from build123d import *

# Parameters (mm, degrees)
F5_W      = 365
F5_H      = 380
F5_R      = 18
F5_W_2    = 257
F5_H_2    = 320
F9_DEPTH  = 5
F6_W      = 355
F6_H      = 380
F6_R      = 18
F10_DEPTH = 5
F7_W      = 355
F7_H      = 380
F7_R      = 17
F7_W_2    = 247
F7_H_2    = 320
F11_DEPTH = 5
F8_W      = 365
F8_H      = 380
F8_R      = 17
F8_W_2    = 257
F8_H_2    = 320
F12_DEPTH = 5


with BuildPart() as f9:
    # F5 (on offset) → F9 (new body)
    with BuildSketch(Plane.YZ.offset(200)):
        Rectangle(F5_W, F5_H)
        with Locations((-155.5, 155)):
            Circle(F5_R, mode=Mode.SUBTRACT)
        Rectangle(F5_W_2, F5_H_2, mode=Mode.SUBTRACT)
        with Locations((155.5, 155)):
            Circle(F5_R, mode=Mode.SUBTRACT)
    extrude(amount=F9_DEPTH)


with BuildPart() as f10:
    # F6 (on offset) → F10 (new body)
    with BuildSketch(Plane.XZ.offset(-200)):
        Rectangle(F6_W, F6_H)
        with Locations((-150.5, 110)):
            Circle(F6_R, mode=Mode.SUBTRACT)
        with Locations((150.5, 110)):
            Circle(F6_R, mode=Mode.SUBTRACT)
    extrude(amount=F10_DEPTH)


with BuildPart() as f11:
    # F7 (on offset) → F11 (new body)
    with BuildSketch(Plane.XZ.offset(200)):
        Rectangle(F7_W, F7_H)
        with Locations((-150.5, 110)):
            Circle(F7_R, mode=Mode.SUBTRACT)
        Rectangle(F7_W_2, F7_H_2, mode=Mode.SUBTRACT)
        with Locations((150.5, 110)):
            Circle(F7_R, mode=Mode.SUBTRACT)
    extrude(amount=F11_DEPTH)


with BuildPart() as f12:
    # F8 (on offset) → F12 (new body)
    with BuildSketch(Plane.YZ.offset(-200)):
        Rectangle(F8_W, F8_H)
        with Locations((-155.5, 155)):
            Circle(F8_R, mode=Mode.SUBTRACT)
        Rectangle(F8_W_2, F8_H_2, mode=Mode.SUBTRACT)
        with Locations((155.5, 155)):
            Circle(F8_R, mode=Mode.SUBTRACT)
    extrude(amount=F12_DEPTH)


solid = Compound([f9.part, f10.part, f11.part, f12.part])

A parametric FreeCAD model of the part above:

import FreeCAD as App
import Part
import Sketcher

V = App.Vector

doc = App.newDocument("Part")
body = doc.addObject("PartDesign::Body", "Body")

# Sketch on YZ plane
sketch1 = doc.addObject("Sketcher::SketchObject", "Sketch")
body.addObject(sketch1)
sketch1.AttachmentSupport = (doc.YZ_Plane, [""])
sketch1.MapMode = "FlatFace"
sketch1.AttachmentOffset = App.Placement(V(0, 0, 200), App.Rotation())
sketch1.addGeometry(Part.LineSegment(V(-182, 190, 0), V(-182, -190, 0)), False)
sketch1.addGeometry(Part.LineSegment(V(-182, -190, 0), V(182, -190, 0)), False)
sketch1.addGeometry(Part.LineSegment(V(182, -190, 0), V(182, 190, 0)), False)
sketch1.addGeometry(Part.LineSegment(V(182, 190, 0), V(-182, 190, 0)), False)
sketch1.addGeometry(Part.LineSegment(V(128, -160, 0), V(-128, -160, 0)), False)
sketch1.addGeometry(Part.LineSegment(V(-128, -160, 0), V(-128, 160, 0)), False)
sketch1.addGeometry(Part.LineSegment(V(-128, 160, 0), V(128, 160, 0)), False)
sketch1.addGeometry(Part.LineSegment(V(128, 160, 0), V(128, -160, 0)), False)
sketch1.addGeometry(Part.Circle(V(-156, 155, 0), V(0, 0, 1), 18), False)
sketch1.addGeometry(Part.Circle(V(156, 155, 0), V(0, 0, 1), 18), False)
sketch1.addConstraint(Sketcher.Constraint("Coincident", 0, 2, 1, 1))
sketch1.addConstraint(Sketcher.Constraint("Coincident", 1, 2, 2, 1))
sketch1.addConstraint(Sketcher.Constraint("Coincident", 2, 2, 3, 1))
sketch1.addConstraint(Sketcher.Constraint("Coincident", 3, 2, 0, 1))
sketch1.addConstraint(Sketcher.Constraint("Coincident", 4, 2, 5, 1))
sketch1.addConstraint(Sketcher.Constraint("Coincident", 5, 2, 6, 1))
sketch1.addConstraint(Sketcher.Constraint("Coincident", 6, 2, 7, 1))
sketch1.addConstraint(Sketcher.Constraint("Coincident", 7, 2, 4, 1))
sketch1.addConstraint(Sketcher.Constraint("Vertical", 0))
sketch1.addConstraint(Sketcher.Constraint("Horizontal", 1))
sketch1.addConstraint(Sketcher.Constraint("Vertical", 2))
sketch1.addConstraint(Sketcher.Constraint("Horizontal", 3))
sketch1.addConstraint(Sketcher.Constraint("Horizontal", 4))
sketch1.addConstraint(Sketcher.Constraint("Vertical", 5))
sketch1.addConstraint(Sketcher.Constraint("Horizontal", 6))
sketch1.addConstraint(Sketcher.Constraint("Vertical", 7))
sketch1.addConstraint(Sketcher.Constraint("Equal", 8, 9))
sketch1.addConstraint(Sketcher.Constraint("Symmetric", 0, 2, 2, 2, -1, 1))
sketch1.addConstraint(Sketcher.Constraint("Symmetric", 4, 2, 6, 2, -1, 1))
sketch1.addConstraint(Sketcher.Constraint("Symmetric", 8, 3, 9, 3, -2))
sketch1.addConstraint(Sketcher.Constraint("Diameter", 8, 36.0))
sketch1.addConstraint(Sketcher.Constraint("DistanceX", 1, 1, 1, 2, 365.0))
sketch1.addConstraint(Sketcher.Constraint("DistanceX", 4, 2, 4, 1, 257.0))
sketch1.addConstraint(Sketcher.Constraint("DistanceY", 0, 2, 0, 1, 380.0))
sketch1.addConstraint(Sketcher.Constraint("DistanceY", 5, 1, 5, 2, 320.0))
sketch1.addConstraint(Sketcher.Constraint("DistanceY", -1, 1, 8, 3, 155.0))
sketch1.addConstraint(Sketcher.Constraint("DistanceX", 8, 3, 9, 3, 311.0))
pad1 = doc.addObject("PartDesign::Pad", "Pad")
body.addObject(pad1)
pad1.Profile = sketch1
pad1.Length = 5
body2 = doc.addObject("PartDesign::Body", "Body001")

# Sketch on XZ plane
sketch2 = doc.addObject("Sketcher::SketchObject", "Sketch001")
body2.addObject(sketch2)
sketch2.AttachmentSupport = (doc.getObject("XZ_Plane001"), [""])
sketch2.MapMode = "FlatFace"
sketch2.AttachmentOffset = App.Placement(V(0, 0, -200), App.Rotation())
sketch2.addGeometry(Part.LineSegment(V(-178, 190, 0), V(-178, -190, 0)), False)
sketch2.addGeometry(Part.LineSegment(V(-178, -190, 0), V(178, -190, 0)), False)
sketch2.addGeometry(Part.LineSegment(V(178, -190, 0), V(178, 190, 0)), False)
sketch2.addGeometry(Part.LineSegment(V(178, 190, 0), V(-178, 190, 0)), False)
sketch2.addGeometry(Part.Circle(V(-150, 110, 0), V(0, 0, 1), 18), False)
sketch2.addGeometry(Part.Circle(V(150, 110, 0), V(0, 0, 1), 18), False)
sketch2.addConstraint(Sketcher.Constraint("Coincident", 0, 2, 1, 1))
sketch2.addConstraint(Sketcher.Constraint("Coincident", 1, 2, 2, 1))
sketch2.addConstraint(Sketcher.Constraint("Coincident", 2, 2, 3, 1))
sketch2.addConstraint(Sketcher.Constraint("Coincident", 3, 2, 0, 1))
sketch2.addConstraint(Sketcher.Constraint("Vertical", 0))
sketch2.addConstraint(Sketcher.Constraint("Horizontal", 1))
sketch2.addConstraint(Sketcher.Constraint("Vertical", 2))
sketch2.addConstraint(Sketcher.Constraint("Horizontal", 3))
sketch2.addConstraint(Sketcher.Constraint("Equal", 4, 5))
sketch2.addConstraint(Sketcher.Constraint("Symmetric", 0, 2, 2, 2, -1, 1))
sketch2.addConstraint(Sketcher.Constraint("Symmetric", 4, 3, 5, 3, -2))
sketch2.addConstraint(Sketcher.Constraint("Diameter", 4, 36.0))
sketch2.addConstraint(Sketcher.Constraint("DistanceX", 1, 1, 1, 2, 355.0))
sketch2.addConstraint(Sketcher.Constraint("DistanceY", 0, 2, 0, 1, 380.0))
sketch2.addConstraint(Sketcher.Constraint("DistanceY", -1, 1, 4, 3, 110.0))
sketch2.addConstraint(Sketcher.Constraint("DistanceX", 4, 3, 5, 3, 301.0))
pad2 = doc.addObject("PartDesign::Pad", "Pad001")
body2.addObject(pad2)
pad2.Profile = sketch2
pad2.Length = 5
body3 = doc.addObject("PartDesign::Body", "Body002")

# Sketch on XZ plane
sketch3 = doc.addObject("Sketcher::SketchObject", "Sketch002")
body3.addObject(sketch3)
sketch3.AttachmentSupport = (doc.getObject("XZ_Plane002"), [""])
sketch3.MapMode = "FlatFace"
sketch3.AttachmentOffset = App.Placement(V(0, 0, 200), App.Rotation())
sketch3.addGeometry(Part.LineSegment(V(-178, 190, 0), V(-178, -190, 0)), False)
sketch3.addGeometry(Part.LineSegment(V(-178, -190, 0), V(178, -190, 0)), False)
sketch3.addGeometry(Part.LineSegment(V(178, -190, 0), V(178, 190, 0)), False)
sketch3.addGeometry(Part.LineSegment(V(178, 190, 0), V(-178, 190, 0)), False)
sketch3.addGeometry(Part.Circle(V(-150, 110, 0), V(0, 0, 1), 17), False)
sketch3.addGeometry(Part.LineSegment(V(124, -160, 0), V(-124, -160, 0)), False)
sketch3.addGeometry(Part.LineSegment(V(-124, -160, 0), V(-124, 160, 0)), False)
sketch3.addGeometry(Part.LineSegment(V(-124, 160, 0), V(124, 160, 0)), False)
sketch3.addGeometry(Part.LineSegment(V(124, 160, 0), V(124, -160, 0)), False)
sketch3.addGeometry(Part.Circle(V(150, 110, 0), V(0, 0, 1), 17), False)
sketch3.addConstraint(Sketcher.Constraint("Coincident", 0, 2, 1, 1))
sketch3.addConstraint(Sketcher.Constraint("Coincident", 1, 2, 2, 1))
sketch3.addConstraint(Sketcher.Constraint("Coincident", 2, 2, 3, 1))
sketch3.addConstraint(Sketcher.Constraint("Coincident", 3, 2, 0, 1))
sketch3.addConstraint(Sketcher.Constraint("Coincident", 5, 2, 6, 1))
sketch3.addConstraint(Sketcher.Constraint("Coincident", 6, 2, 7, 1))
sketch3.addConstraint(Sketcher.Constraint("Coincident", 7, 2, 8, 1))
sketch3.addConstraint(Sketcher.Constraint("Coincident", 8, 2, 5, 1))
sketch3.addConstraint(Sketcher.Constraint("Vertical", 0))
sketch3.addConstraint(Sketcher.Constraint("Horizontal", 1))
sketch3.addConstraint(Sketcher.Constraint("Vertical", 2))
sketch3.addConstraint(Sketcher.Constraint("Horizontal", 3))
sketch3.addConstraint(Sketcher.Constraint("Horizontal", 5))
sketch3.addConstraint(Sketcher.Constraint("Vertical", 6))
sketch3.addConstraint(Sketcher.Constraint("Horizontal", 7))
sketch3.addConstraint(Sketcher.Constraint("Vertical", 8))
sketch3.addConstraint(Sketcher.Constraint("Equal", 4, 9))
sketch3.addConstraint(Sketcher.Constraint("Symmetric", 0, 2, 2, 2, -1, 1))
sketch3.addConstraint(Sketcher.Constraint("Symmetric", 5, 2, 7, 2, -1, 1))
sketch3.addConstraint(Sketcher.Constraint("Symmetric", 4, 3, 9, 3, -2))
sketch3.addConstraint(Sketcher.Constraint("Diameter", 4, 34.0))
sketch3.addConstraint(Sketcher.Constraint("DistanceX", 1, 1, 1, 2, 355.0))
sketch3.addConstraint(Sketcher.Constraint("DistanceX", 5, 2, 5, 1, 247.0))
sketch3.addConstraint(Sketcher.Constraint("DistanceY", 0, 2, 0, 1, 380.0))
sketch3.addConstraint(Sketcher.Constraint("DistanceY", 6, 1, 6, 2, 320.0))
sketch3.addConstraint(Sketcher.Constraint("DistanceY", -1, 1, 4, 3, 110.0))
sketch3.addConstraint(Sketcher.Constraint("DistanceX", 4, 3, 9, 3, 301.0))
pad3 = doc.addObject("PartDesign::Pad", "Pad002")
body3.addObject(pad3)
pad3.Profile = sketch3
pad3.Length = 5
body4 = doc.addObject("PartDesign::Body", "Body003")

# Sketch on YZ plane
sketch4 = doc.addObject("Sketcher::SketchObject", "Sketch003")
body4.addObject(sketch4)
sketch4.AttachmentSupport = (doc.getObject("YZ_Plane003"), [""])
sketch4.MapMode = "FlatFace"
sketch4.AttachmentOffset = App.Placement(V(0, 0, -200), App.Rotation())
sketch4.addGeometry(Part.LineSegment(V(-182, 190, 0), V(-182, -190, 0)), False)
sketch4.addGeometry(Part.LineSegment(V(-182, -190, 0), V(182, -190, 0)), False)
sketch4.addGeometry(Part.LineSegment(V(182, -190, 0), V(182, 190, 0)), False)
sketch4.addGeometry(Part.LineSegment(V(182, 190, 0), V(-182, 190, 0)), False)
sketch4.addGeometry(Part.LineSegment(V(128, -160, 0), V(-128, -160, 0)), False)
sketch4.addGeometry(Part.LineSegment(V(-128, -160, 0), V(-128, 160, 0)), False)
sketch4.addGeometry(Part.LineSegment(V(-128, 160, 0), V(128, 160, 0)), False)
sketch4.addGeometry(Part.LineSegment(V(128, 160, 0), V(128, -160, 0)), False)
sketch4.addGeometry(Part.Circle(V(-156, 155, 0), V(0, 0, 1), 17), False)
sketch4.addGeometry(Part.Circle(V(156, 155, 0), V(0, 0, 1), 17), False)
sketch4.addConstraint(Sketcher.Constraint("Coincident", 0, 2, 1, 1))
sketch4.addConstraint(Sketcher.Constraint("Coincident", 1, 2, 2, 1))
sketch4.addConstraint(Sketcher.Constraint("Coincident", 2, 2, 3, 1))
sketch4.addConstraint(Sketcher.Constraint("Coincident", 3, 2, 0, 1))
sketch4.addConstraint(Sketcher.Constraint("Coincident", 4, 2, 5, 1))
sketch4.addConstraint(Sketcher.Constraint("Coincident", 5, 2, 6, 1))
sketch4.addConstraint(Sketcher.Constraint("Coincident", 6, 2, 7, 1))
sketch4.addConstraint(Sketcher.Constraint("Coincident", 7, 2, 4, 1))
sketch4.addConstraint(Sketcher.Constraint("Vertical", 0))
sketch4.addConstraint(Sketcher.Constraint("Horizontal", 1))
sketch4.addConstraint(Sketcher.Constraint("Vertical", 2))
sketch4.addConstraint(Sketcher.Constraint("Horizontal", 3))
sketch4.addConstraint(Sketcher.Constraint("Horizontal", 4))
sketch4.addConstraint(Sketcher.Constraint("Vertical", 5))
sketch4.addConstraint(Sketcher.Constraint("Horizontal", 6))
sketch4.addConstraint(Sketcher.Constraint("Vertical", 7))
sketch4.addConstraint(Sketcher.Constraint("Equal", 8, 9))
sketch4.addConstraint(Sketcher.Constraint("Symmetric", 0, 2, 2, 2, -1, 1))
sketch4.addConstraint(Sketcher.Constraint("Symmetric", 4, 2, 6, 2, -1, 1))
sketch4.addConstraint(Sketcher.Constraint("Symmetric", 8, 3, 9, 3, -2))
sketch4.addConstraint(Sketcher.Constraint("Diameter", 8, 34.0))
sketch4.addConstraint(Sketcher.Constraint("DistanceX", 1, 1, 1, 2, 365.0))
sketch4.addConstraint(Sketcher.Constraint("DistanceX", 4, 2, 4, 1, 257.0))
sketch4.addConstraint(Sketcher.Constraint("DistanceY", 0, 2, 0, 1, 380.0))
sketch4.addConstraint(Sketcher.Constraint("DistanceY", 5, 1, 5, 2, 320.0))
sketch4.addConstraint(Sketcher.Constraint("DistanceY", -1, 1, 8, 3, 155.0))
sketch4.addConstraint(Sketcher.Constraint("DistanceX", 8, 3, 9, 3, 311.0))
pad4 = doc.addObject("PartDesign::Pad", "Pad003")
body4.addObject(pad4)
pad4.Profile = sketch4
pad4.Length = 5

doc.recompute()
